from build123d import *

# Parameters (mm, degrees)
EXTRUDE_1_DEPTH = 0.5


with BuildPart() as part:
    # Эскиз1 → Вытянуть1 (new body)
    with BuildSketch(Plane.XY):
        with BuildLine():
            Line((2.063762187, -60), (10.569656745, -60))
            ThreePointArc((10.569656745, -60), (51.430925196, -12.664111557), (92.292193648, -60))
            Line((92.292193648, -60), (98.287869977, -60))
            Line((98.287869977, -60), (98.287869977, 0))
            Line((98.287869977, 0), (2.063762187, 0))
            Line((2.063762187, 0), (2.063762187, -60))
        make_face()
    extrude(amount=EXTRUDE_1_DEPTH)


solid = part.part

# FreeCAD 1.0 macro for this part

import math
import FreeCAD as App
import Part
import Sketcher

V = App.Vector
Q = App.Units.Quantity

doc = App.newDocument("Part")
body = doc.addObject("PartDesign::Body", "Body")

# Sketch on XY plane
sketch1 = doc.addObject("Sketcher::SketchObject", "Sketch")
body.addObject(sketch1)
sketch1.AttachmentSupport = (doc.XY_Plane, [""])
sketch1.MapMode = "FlatFace"
sketch1.addGeometry([
    Part.LineSegment(V(2.063762, -60, 0), V(10.569657, -60, 0)),  # 0
    Part.ArcOfCircle(Part.Circle(V(51.430925, -53.96818, 0), V(0, 0, 1), 41.304069), math.radians(-8.39719), math.radians(188.39719)),  # 1
    Part.LineSegment(V(92.292194, -60, 0), V(98.28787, -60, 0)),  # 2
    Part.LineSegment(V(98.28787, -60, 0), V(98.28787, 0, 0)),  # 3
    Part.LineSegment(V(98.28787, 0, 0), V(2.063762, 0, 0)),  # 4
    Part.LineSegment(V(2.063762, 0, 0), V(2.063762, -60, 0)),  # 5
], False)
sketch1.addConstraint([
    Sketcher.Constraint("Coincident", 0, 2, 1, 2),
    Sketcher.Constraint("Coincident", 1, 1, 2, 1),
    Sketcher.Constraint("Coincident", 2, 2, 3, 1),
    Sketcher.Constraint("Coincident", 3, 2, 4, 1),
    Sketcher.Constraint("Coincident", 4, 2, 5, 1),
    Sketcher.Constraint("Coincident", 5, 2, 0, 1),
    Sketcher.Constraint("Horizontal", 0),
    Sketcher.Constraint("Horizontal", 2),
    Sketcher.Constraint("Vertical", 3),
    Sketcher.Constraint("Horizontal", 4),
    Sketcher.Constraint("Vertical", 5),
    Sketcher.Constraint("PointOnObject", 3, 2, -1),
    Sketcher.Constraint("Horizontal", 0, 2, 1, 1),
    Sketcher.Constraint("DistanceY", 3, 1, 3, 2, Q("60 mm")),
    Sketcher.Constraint("Radius", 1, Q("41.304069 mm")),
    Sketcher.Constraint("DistanceX", 0, 1, 0, 2, Q("8.505895 mm")),
    Sketcher.Constraint("DistanceX", 2, 1, 2, 2, Q("5.995676 mm")),
    Sketcher.Constraint("DistanceX", 4, 2, 4, 1, Q("96.224108 mm")),
    Sketcher.Constraint("DistanceX", -1, 1, 2, 2, Q("98.28787 mm")),
])
pad1 = doc.addObject("PartDesign::Pad", "Pad")
body.addObject(pad1)
pad1.Profile = sketch1
pad1.Length = 0.5

doc.recompute()
